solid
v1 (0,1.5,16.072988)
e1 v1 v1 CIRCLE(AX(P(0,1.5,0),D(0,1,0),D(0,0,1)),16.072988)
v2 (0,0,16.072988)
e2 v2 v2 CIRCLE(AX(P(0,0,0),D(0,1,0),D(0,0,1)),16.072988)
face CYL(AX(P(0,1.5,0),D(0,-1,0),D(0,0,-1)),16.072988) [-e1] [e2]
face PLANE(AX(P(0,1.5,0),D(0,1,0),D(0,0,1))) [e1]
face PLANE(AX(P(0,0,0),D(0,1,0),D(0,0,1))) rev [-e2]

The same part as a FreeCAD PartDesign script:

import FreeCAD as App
import Part
import Sketcher

doc = App.newDocument("Part")
body = doc.addObject("PartDesign::Body", "Body")

# Sketch on XZ plane
sketch1 = body.newObject("Sketcher::SketchObject", "Sketch")
sketch1.AttachmentSupport = (doc.getObject("XZ_Plane"), [""])
sketch1.MapMode = "FlatFace"
sketch1.addGeometry(Part.Circle(App.Vector(0, 0, 0), App.Vector(0, 0, 1), 16), False)
sketch1.addConstraint(Sketcher.Constraint("Coincident", 0, 3, -1, 1))
sketch1.addConstraint(Sketcher.Constraint("Diameter", 0, 32.145976))
pad1 = body.newObject("PartDesign::Pad", "Pad")
pad1.Profile = sketch1
pad1.Length = 1.5
pad1.Reversed = True

doc.recompute()
